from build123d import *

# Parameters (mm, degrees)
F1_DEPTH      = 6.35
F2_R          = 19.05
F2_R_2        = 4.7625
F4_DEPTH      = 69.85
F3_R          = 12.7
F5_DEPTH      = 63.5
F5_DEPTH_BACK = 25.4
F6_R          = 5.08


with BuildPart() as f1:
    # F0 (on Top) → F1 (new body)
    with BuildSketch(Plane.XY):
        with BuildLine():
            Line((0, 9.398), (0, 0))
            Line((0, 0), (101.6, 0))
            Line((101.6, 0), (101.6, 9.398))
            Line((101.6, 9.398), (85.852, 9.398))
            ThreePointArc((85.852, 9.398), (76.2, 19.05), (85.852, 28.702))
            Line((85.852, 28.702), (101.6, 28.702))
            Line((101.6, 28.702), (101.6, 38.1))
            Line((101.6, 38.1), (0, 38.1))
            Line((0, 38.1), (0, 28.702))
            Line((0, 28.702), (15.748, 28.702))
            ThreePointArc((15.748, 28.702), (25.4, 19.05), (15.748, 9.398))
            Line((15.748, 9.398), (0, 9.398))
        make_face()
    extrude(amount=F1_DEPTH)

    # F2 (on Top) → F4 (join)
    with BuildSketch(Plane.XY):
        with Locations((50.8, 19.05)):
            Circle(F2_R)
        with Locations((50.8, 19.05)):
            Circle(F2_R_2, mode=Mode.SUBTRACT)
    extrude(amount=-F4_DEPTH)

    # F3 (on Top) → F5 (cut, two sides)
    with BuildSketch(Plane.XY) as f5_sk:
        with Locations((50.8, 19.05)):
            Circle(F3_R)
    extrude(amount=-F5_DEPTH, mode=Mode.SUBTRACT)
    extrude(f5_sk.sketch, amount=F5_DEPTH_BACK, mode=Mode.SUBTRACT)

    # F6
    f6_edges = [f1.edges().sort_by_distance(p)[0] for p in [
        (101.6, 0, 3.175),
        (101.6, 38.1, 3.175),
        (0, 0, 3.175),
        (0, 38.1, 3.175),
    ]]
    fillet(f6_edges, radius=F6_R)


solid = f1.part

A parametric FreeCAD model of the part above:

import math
import FreeCAD as App
import Part
import Sketcher
from FreeCAD import Vector
Q = App.Units.Quantity


def edges_at(feature, points):
    """Names of the edges that pass closest to the given points."""
    edges = feature.Shape.Edges
    near = lambda p: min(range(len(edges)), key=lambda i: edges[i].distToShape(Part.Vertex(*p))[0])
    return sorted({f"Edge{near(p) + 1}" for p in points})

doc = App.newDocument("Part")
body = doc.addObject("PartDesign::Body", "Body")

# Sketch on XY plane
sketch1 = doc.addObject("Sketcher::SketchObject", "Sketch")
body.addObject(sketch1)
sketch1.AttachmentSupport = (doc.XY_Plane, [""])
sketch1.MapMode = "FlatFace"
sketch1.addGeometry(Part.LineSegment(Vector(0, 9.398, 0), Vector(0, 0, 0)), False)
sketch1.addGeometry(Part.LineSegment(Vector(0, 0, 0), Vector(101.6, 0, 0)), False)
sketch1.addGeometry(Part.LineSegment(Vector(101.6, 0, 0), Vector(101.6, 9.398, 0)), False)
sketch1.addGeometry(Part.LineSegment(Vector(101.6, 9.398, 0), Vector(85.852, 9.398, 0)), False)
sketch1.addGeometry(Part.ArcOfCircle(Part.Circle(Vector(85.852, 19.05, 0), Vector(0, 0, 1), 9.652), math.radians(90), math.radians(270)), False)
sketch1.addGeometry(Part.LineSegment(Vector(85.852, 28.702, 0), Vector(101.6, 28.702, 0)), False)
sketch1.addGeometry(Part.LineSegment(Vector(101.6, 28.702, 0), Vector(101.6, 38.1, 0)), False)
sketch1.addGeometry(Part.LineSegment(Vector(101.6, 38.1, 0), Vector(0, 38.1, 0)), False)
sketch1.addGeometry(Part.LineSegment(Vector(0, 38.1, 0), Vector(0, 28.702, 0)), False)
sketch1.addGeometry(Part.LineSegment(Vector(0, 28.702, 0), Vector(15.748, 28.702, 0)), False)
sketch1.addGeometry(Part.ArcOfCircle(Part.Circle(Vector(15.748, 19.05, 0), Vector(0, 0, 1), 9.652), math.radians(-90), math.radians(90)), False)
sketch1.addGeometry(Part.LineSegment(Vector(15.748, 9.398, 0), Vector(0, 9.398, 0)), False)
sketch1.addConstraint(Sketcher.Constraint("Coincident", 0, 2, 1, 1))
sketch1.addConstraint(Sketcher.Constraint("Coincident", 1, 2, 2, 1))
sketch1.addConstraint(Sketcher.Constraint("Coincident", 2, 2, 3, 1))
sketch1.addConstraint(Sketcher.Constraint("Tangent", 3, 2, 4, 2))
sketch1.addConstraint(Sketcher.Constraint("Tangent", 4, 1, 5, 1))
sketch1.addConstraint(Sketcher.Constraint("Coincident", 5, 2, 6, 1))
sketch1.addConstraint(Sketcher.Constraint("Coincident", 6, 2, 7, 1))
sketch1.addConstraint(Sketcher.Constraint("Coincident", 7, 2, 8, 1))
sketch1.addConstraint(Sketcher.Constraint("Coincident", 8, 2, 9, 1))
sketch1.addConstraint(Sketcher.Constraint("Tangent", 9, 2, 10, 2))
sketch1.addConstraint(Sketcher.Constraint("Tangent", 10, 1, 11, 1))
sketch1.addConstraint(Sketcher.Constraint("Coincident", 11, 2, 0, 1))
sketch1.addConstraint(Sketcher.Constraint("Vertical", 0))
sketch1.addConstraint(Sketcher.Constraint("Horizontal", 1))
sketch1.addConstraint(Sketcher.Constraint("Vertical", 2))
sketch1.addConstraint(Sketcher.Constraint("Horizontal", 3))
sketch1.addConstraint(Sketcher.Constraint("Horizontal", 5))
sketch1.addConstraint(Sketcher.Constraint("Vertical", 6))
sketch1.addConstraint(Sketcher.Constraint("Horizontal", 7))
sketch1.addConstraint(Sketcher.Constraint("Vertical", 8))
sketch1.addConstraint(Sketcher.Constraint("Horizontal", 9))
sketch1.addConstraint(Sketcher.Constraint("Horizontal", 11))
sketch1.addConstraint(Sketcher.Constraint("Coincident", 0, 2, -1, 1))
sketch1.addConstraint(Sketcher.Constraint("Equal", 4, 10))
sketch1.addConstraint(Sketcher.Constraint("PointOnObject", 7, 2, -2))
sketch1.addConstraint(Sketcher.Constraint("Horizontal", 4, 3, 10, 3))
sketch1.addConstraint(Sketcher.Constraint("Vertical", 2, 2, 5, 2))
sketch1.addConstraint(Sketcher.Constraint("Equal", 5, 9))
sketch1.addConstraint(Sketcher.Constraint("Equal", 2, 6))
sketch1.addConstraint(Sketcher.Constraint("DistanceX", 1, 1, 1, 2, Q("4 in")))
sketch1.addConstraint(Sketcher.Constraint("Radius", 4, Q("0.38 in")))
sketch1.addConstraint(Sketcher.Constraint("DistanceX", 3, 2, 3, 1, Q("0.62 in")))
sketch1.addConstraint(Sketcher.Constraint("DistanceY", 0, 2, 0, 1, Q("0.37 in")))
pad1 = doc.addObject("PartDesign::Pad", "Pad")
body.addObject(pad1)
pad1.Profile = sketch1
pad1.Length = Q("0.25 in")

# Sketch on XY plane
sketch2 = doc.addObject("Sketcher::SketchObject", "Sketch001")
body.addObject(sketch2)
sketch2.AttachmentSupport = (doc.XY_Plane, [""])
sketch2.MapMode = "FlatFace"
sketch2.addGeometry(Part.Circle(Vector(50.8, 19.05, 0), Vector(0, 0, 1), 19.05), False)
sketch2.addGeometry(Part.Circle(Vector(50.8, 19.05, 0), Vector(0, 0, 1), 4.7625), False)
sketch2.addConstraint(Sketcher.Constraint("Coincident", 1, 3, 0, 3))
sketch2.addConstraint(Sketcher.Constraint("Diameter", 0, Q("1.5 in")))
sketch2.addConstraint(Sketcher.Constraint("Diameter", 1, Q("0.375 in")))
sketch2.addConstraint(Sketcher.Constraint("DistanceX", -1, 1, 0, 3, Q("2 in")))
sketch2.addConstraint(Sketcher.Constraint("DistanceY", -1, 1, 0, 3, Q("0.75 in")))
pad2 = doc.addObject("PartDesign::Pad", "Pad001")
body.addObject(pad2)
pad2.Profile = sketch2
pad2.Length = Q("2.75 in")
pad2.Reversed = True

# Sketch on XY plane
sketch3 = doc.addObject("Sketcher::SketchObject", "Sketch002")
body.addObject(sketch3)
sketch3.AttachmentSupport = (doc.XY_Plane, [""])
sketch3.MapMode = "FlatFace"
sketch3.addGeometry(Part.Circle(Vector(50.8, 19.05, 0), Vector(0, 0, 1), 12.7), False)
sketch3.addConstraint(Sketcher.Constraint("Diameter", 0, Q("1 in")))
sketch3.addConstraint(Sketcher.Constraint("DistanceX", -1, 1, 0, 3, Q("2 in")))
sketch3.addConstraint(Sketcher.Constraint("DistanceY", -1, 1, 0, 3, Q("0.75 in")))
pocket1 = doc.addObject("PartDesign::Pocket", "Pocket")
body.addObject(pocket1)
pocket1.Profile = sketch3
pocket1.Type = "TwoLengths"
pocket1.Length = Q("2.5 in")
pocket1.Length2 = Q("1 in")
doc.recompute()

fillet = doc.addObject("PartDesign::Fillet", "Fillet")
body.addObject(fillet)
fillet.Base = (pocket1, edges_at(pocket1, [
    (101.6, 0, 3.175),
    (101.6, 38.1, 3.175),
    (0, 0, 3.175),
    (0, 38.1, 3.175),
]))
fillet.Radius = Q("0.2 in")

doc.recompute()
